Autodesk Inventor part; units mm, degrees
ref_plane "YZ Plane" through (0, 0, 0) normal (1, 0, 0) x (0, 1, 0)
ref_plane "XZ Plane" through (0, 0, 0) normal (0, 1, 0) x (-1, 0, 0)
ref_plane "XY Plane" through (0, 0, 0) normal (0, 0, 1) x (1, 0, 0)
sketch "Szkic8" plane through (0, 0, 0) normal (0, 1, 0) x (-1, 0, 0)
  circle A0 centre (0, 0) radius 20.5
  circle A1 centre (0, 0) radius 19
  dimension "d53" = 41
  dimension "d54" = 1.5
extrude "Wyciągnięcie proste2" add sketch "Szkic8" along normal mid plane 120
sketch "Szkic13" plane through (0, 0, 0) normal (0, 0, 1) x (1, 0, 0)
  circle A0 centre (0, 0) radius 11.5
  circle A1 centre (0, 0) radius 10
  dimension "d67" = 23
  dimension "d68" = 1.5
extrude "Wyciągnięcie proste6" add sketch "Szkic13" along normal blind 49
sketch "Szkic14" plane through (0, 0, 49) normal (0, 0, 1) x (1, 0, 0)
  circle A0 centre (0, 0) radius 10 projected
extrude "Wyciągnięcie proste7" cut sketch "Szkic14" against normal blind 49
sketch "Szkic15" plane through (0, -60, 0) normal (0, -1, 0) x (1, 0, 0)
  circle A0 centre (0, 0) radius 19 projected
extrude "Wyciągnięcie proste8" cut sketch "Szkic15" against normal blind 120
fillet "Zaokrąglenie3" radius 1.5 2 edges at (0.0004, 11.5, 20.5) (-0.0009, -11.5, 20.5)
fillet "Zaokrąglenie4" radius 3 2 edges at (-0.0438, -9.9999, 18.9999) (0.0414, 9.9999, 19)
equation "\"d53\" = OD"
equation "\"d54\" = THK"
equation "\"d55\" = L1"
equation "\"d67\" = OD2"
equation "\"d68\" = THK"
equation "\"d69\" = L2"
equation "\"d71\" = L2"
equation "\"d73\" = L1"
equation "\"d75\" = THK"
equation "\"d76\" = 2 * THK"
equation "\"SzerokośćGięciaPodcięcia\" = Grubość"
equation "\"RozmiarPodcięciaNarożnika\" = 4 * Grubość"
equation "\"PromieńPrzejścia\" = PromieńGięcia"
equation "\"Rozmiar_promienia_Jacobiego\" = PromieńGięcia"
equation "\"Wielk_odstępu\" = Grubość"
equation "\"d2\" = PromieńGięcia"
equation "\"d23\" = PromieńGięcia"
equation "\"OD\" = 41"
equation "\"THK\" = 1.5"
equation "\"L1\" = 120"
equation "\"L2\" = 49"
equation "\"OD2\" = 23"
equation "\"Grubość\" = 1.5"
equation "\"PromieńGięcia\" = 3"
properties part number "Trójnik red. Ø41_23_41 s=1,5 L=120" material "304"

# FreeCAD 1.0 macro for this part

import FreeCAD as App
import Part
import Sketcher

V = App.Vector
Q = App.Units.Quantity


def edges_at(feature, points):
    """Names of the edges that pass closest to the given points."""
    edges = feature.Shape.Edges
    near = lambda p: min(range(len(edges)), key=lambda i: edges[i].distToShape(Part.Vertex(*p))[0])
    return sorted({f"Edge{near(p) + 1}" for p in points})

doc = App.newDocument("Part")
params = doc.addObject("Spreadsheet::Sheet", "Params")
for row, (alias, value) in enumerate([
    ("sketch1_diameter", "41 mm"),
    ("sketch1_diameter2", "38 mm"),
    ("pad1_length", "120 mm"),
    ("sketch2_diameter", "23 mm"),
    ("sketch2_diameter2", "20 mm"),
    ("pad2_length", "49 mm"),
    ("sketch3_diameter", "20 mm"),
    ("pocket1_length", "49 mm"),
    ("sketch4_diameter", "38 mm"),
    ("pocket2_length", "120 mm"),
    ("fillet_radius", "1.5 mm"),
    ("fillet2_radius", "3 mm"),
], start=1):
    params.set(f"A{row}", alias)
    params.set(f"B{row}", "=" + value)
    params.setAlias(f"B{row}", alias)

body = doc.addObject("PartDesign::Body", "Body")

# Sketch on XZ plane
sketch1 = doc.addObject("Sketcher::SketchObject", "Sketch")
body.addObject(sketch1)
sketch1.AttachmentSupport = (doc.XZ_Plane, [""])
sketch1.MapMode = "FlatFace"
sketch1.addGeometry(Part.Circle(V(0, 0, 0), V(0, 0, 1), 20.5), False)
sketch1.addGeometry(Part.Circle(V(0, 0, 0), V(0, 0, 1), 19), False)
sketch1.addConstraint(Sketcher.Constraint("Coincident", 0, 3, -1, 1))
sketch1.addConstraint(Sketcher.Constraint("Coincident", 1, 3, -1, 1))
sketch1.addConstraint(Sketcher.Constraint("Diameter", 0, Q("41 mm")))
sketch1.addConstraint(Sketcher.Constraint("Diameter", 1, Q("38 mm")))
sketch1.setExpression("Constraints[2]", "Params.sketch1_diameter")
sketch1.setExpression("Constraints[3]", "Params.sketch1_diameter2")
pad1 = doc.addObject("PartDesign::Pad", "Pad")
body.addObject(pad1)
pad1.Profile = sketch1
pad1.setExpression("Length", "Params.pad1_length")
pad1.Midplane = True

# Sketch on XY plane
sketch2 = doc.addObject("Sketcher::SketchObject", "Sketch001")
body.addObject(sketch2)
sketch2.AttachmentSupport = (doc.XY_Plane, [""])
sketch2.MapMode = "FlatFace"
sketch2.addGeometry(Part.Circle(V(0, 0, 0), V(0, 0, 1), 11.5), False)
sketch2.addGeometry(Part.Circle(V(0, 0, 0), V(0, 0, 1), 10), False)
sketch2.addConstraint(Sketcher.Constraint("Coincident", 0, 3, -1, 1))
sketch2.addConstraint(Sketcher.Constraint("Coincident", 1, 3, -1, 1))
sketch2.addConstraint(Sketcher.Constraint("Diameter", 0, Q("23 mm")))
sketch2.addConstraint(Sketcher.Constraint("Diameter", 1, Q("20 mm")))
sketch2.setExpression("Constraints[2]", "Params.sketch2_diameter")
sketch2.setExpression("Constraints[3]", "Params.sketch2_diameter2")
pad2 = doc.addObject("PartDesign::Pad", "Pad001")
body.addObject(pad2)
pad2.Profile = sketch2
pad2.setExpression("Length", "Params.pad2_length")

# Sketch on XY plane
sketch3 = doc.addObject("Sketcher::SketchObject", "Sketch002")
body.addObject(sketch3)
sketch3.AttachmentSupport = (doc.XY_Plane, [""])
sketch3.MapMode = "FlatFace"
sketch3.AttachmentOffset = App.Placement(V(0, 0, 49), App.Rotation())
sketch3.addGeometry(Part.Circle(V(0, 0, 0), V(0, 0, 1), 10), False)
sketch3.addConstraint(Sketcher.Constraint("Coincident", 0, 3, -1, 1))
sketch3.addConstraint(Sketcher.Constraint("Diameter", 0, Q("20 mm")))
sketch3.setExpression("Constraints[1]", "Params.sketch3_diameter")
pocket1 = doc.addObject("PartDesign::Pocket", "Pocket")
body.addObject(pocket1)
pocket1.Profile = sketch3
pocket1.setExpression("Length", "Params.pocket1_length")

# Sketch on XZ plane
sketch4 = doc.addObject("Sketcher::SketchObject", "Sketch003")
body.addObject(sketch4)
sketch4.AttachmentSupport = (doc.XZ_Plane, [""])
sketch4.MapMode = "FlatFace"
sketch4.AttachmentOffset = App.Placement(V(0, 0, 60), App.Rotation())
sketch4.addGeometry(Part.Circle(V(0, 0, 0), V(0, 0, 1), 19), False)
sketch4.addConstraint(Sketcher.Constraint("Coincident", 0, 3, -1, 1))
sketch4.addConstraint(Sketcher.Constraint("Diameter", 0, Q("38 mm")))
sketch4.setExpression("Constraints[1]", "Params.sketch4_diameter")
pocket2 = doc.addObject("PartDesign::Pocket", "Pocket001")
body.addObject(pocket2)
pocket2.Profile = sketch4
pocket2.setExpression("Length", "Params.pocket2_length")
doc.recompute()

fillet = doc.addObject("PartDesign::Fillet", "Fillet")
body.addObject(fillet)
fillet.Base = (pocket2, edges_at(pocket2, [(0, 11.5, 20.5), (-0.001, -11.5, 20.5)]))
fillet.setExpression("Radius", "Params.fillet_radius")
doc.recompute()

fillet2 = doc.addObject("PartDesign::Fillet", "Fillet001")
body.addObject(fillet2)
fillet2.Base = (fillet, edges_at(fillet, [(-0.044, -10, 19), (0.041, 10, 19)]))
fillet2.setExpression("Radius", "Params.fillet2_radius")

doc.recompute()
